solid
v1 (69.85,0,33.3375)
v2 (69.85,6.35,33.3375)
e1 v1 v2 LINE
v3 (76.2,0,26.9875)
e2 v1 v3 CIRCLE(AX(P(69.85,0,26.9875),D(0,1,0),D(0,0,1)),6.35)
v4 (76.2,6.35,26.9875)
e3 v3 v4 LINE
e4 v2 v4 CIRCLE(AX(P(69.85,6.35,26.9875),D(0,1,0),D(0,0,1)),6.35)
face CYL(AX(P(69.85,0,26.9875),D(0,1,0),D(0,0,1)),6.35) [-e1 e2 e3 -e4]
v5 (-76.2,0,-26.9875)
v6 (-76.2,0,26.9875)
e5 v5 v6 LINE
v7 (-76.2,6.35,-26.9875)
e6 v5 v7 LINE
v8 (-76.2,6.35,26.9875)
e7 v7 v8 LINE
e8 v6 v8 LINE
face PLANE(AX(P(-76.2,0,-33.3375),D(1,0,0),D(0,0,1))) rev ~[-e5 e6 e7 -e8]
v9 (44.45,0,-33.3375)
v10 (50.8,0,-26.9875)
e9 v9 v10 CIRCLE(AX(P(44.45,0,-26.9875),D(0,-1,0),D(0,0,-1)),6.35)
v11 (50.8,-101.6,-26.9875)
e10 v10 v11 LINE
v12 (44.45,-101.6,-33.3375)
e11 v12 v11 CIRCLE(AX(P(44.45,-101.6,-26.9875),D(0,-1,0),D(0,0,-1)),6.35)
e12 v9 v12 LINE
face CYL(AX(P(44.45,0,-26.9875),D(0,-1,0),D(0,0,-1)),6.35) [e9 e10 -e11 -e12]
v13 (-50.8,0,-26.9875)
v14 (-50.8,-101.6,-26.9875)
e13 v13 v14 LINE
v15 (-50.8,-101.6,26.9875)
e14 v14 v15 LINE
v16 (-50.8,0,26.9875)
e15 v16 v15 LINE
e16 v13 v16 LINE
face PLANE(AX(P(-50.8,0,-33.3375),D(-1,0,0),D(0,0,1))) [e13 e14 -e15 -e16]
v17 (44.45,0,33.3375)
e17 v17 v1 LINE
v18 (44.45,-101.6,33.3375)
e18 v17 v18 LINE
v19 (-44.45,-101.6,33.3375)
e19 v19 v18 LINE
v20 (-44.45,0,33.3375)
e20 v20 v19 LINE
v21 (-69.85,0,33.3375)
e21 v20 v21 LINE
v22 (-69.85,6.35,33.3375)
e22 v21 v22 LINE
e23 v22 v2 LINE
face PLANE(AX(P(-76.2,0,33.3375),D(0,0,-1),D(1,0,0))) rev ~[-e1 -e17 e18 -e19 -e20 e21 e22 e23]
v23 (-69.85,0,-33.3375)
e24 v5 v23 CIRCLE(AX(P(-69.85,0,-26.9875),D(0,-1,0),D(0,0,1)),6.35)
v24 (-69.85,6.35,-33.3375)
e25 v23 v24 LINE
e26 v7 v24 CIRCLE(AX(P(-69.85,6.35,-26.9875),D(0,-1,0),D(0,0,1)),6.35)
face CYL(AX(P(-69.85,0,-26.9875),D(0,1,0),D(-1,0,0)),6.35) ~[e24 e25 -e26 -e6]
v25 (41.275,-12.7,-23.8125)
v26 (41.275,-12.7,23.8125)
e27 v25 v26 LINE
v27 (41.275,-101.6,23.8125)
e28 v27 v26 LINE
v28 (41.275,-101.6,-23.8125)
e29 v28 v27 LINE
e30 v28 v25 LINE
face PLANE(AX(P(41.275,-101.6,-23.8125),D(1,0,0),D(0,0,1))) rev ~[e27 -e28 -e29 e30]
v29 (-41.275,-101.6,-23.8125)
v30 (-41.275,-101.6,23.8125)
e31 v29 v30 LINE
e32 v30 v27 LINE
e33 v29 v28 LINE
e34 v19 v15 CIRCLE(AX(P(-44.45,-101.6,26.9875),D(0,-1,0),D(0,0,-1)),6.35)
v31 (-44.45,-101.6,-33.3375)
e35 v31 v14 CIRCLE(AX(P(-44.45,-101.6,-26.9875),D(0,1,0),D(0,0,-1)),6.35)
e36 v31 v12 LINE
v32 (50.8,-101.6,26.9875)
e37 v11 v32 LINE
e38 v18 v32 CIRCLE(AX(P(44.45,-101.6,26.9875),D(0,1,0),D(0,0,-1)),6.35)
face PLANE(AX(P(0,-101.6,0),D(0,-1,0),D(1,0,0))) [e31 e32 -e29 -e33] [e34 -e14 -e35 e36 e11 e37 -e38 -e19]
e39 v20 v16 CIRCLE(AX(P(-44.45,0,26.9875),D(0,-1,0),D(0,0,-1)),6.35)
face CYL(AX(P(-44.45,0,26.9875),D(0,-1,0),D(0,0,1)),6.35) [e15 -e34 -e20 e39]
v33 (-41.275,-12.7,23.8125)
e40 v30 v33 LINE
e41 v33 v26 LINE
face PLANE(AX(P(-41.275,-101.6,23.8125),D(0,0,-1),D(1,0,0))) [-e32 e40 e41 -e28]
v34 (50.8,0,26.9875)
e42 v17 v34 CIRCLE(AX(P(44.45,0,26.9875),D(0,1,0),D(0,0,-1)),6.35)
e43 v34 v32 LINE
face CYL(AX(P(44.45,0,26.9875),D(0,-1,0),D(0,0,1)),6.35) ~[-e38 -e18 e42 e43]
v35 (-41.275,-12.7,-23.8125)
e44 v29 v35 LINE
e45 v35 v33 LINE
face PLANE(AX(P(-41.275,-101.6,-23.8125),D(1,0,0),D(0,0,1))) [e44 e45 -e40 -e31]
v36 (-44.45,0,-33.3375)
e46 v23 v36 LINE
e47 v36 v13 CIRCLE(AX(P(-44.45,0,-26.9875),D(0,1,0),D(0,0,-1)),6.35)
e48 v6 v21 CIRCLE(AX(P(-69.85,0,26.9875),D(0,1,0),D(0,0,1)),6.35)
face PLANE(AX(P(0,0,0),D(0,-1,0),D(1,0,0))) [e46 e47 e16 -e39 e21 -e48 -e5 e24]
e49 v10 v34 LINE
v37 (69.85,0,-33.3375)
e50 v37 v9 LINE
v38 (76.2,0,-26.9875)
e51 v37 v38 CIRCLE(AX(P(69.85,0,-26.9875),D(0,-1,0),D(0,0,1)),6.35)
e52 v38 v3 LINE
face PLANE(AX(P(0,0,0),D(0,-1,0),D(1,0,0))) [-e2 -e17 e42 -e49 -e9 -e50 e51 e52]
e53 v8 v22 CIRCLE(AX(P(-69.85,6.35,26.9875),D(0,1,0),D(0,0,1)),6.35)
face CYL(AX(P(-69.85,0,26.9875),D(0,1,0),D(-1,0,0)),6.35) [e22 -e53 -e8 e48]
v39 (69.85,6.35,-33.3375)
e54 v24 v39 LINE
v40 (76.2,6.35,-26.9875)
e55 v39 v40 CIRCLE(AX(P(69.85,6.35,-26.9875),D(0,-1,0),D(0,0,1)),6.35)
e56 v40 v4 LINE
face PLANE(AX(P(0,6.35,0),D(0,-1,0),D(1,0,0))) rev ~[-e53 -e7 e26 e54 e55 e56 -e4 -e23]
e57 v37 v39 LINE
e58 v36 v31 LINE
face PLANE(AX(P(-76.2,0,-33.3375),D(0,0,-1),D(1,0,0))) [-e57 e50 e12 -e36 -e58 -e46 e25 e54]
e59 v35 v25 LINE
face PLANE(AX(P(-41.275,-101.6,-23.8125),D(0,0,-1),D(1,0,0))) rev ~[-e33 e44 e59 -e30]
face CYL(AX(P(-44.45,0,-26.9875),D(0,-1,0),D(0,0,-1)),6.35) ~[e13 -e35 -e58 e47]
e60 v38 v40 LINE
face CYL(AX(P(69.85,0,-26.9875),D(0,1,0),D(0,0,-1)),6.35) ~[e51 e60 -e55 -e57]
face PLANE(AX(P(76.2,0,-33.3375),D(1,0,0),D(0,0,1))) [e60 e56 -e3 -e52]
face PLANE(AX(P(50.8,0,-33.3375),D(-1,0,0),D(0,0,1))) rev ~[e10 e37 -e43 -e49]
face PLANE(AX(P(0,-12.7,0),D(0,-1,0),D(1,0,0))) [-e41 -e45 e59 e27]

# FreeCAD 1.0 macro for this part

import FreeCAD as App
import Part
import Sketcher

V = App.Vector
Q = App.Units.Quantity


def edges_at(feature, points):
    """Names of the edges that pass closest to the given points."""
    edges = feature.Shape.Edges
    near = lambda p: min(range(len(edges)), key=lambda i: edges[i].distToShape(Part.Vertex(*p))[0])
    return sorted({f"Edge{near(p) + 1}" for p in points})


def add_polygon(sketch, points):
    """Adds a closed chain of lines whose ends are joined by coincident constraints."""
    first, n = sketch.GeometryCount, len(points)
    for a, b in zip(points, points[1:] + points[:1]):
        sketch.addGeometry(Part.LineSegment(App.Vector(*a, 0), App.Vector(*b, 0)), False)
    for i in range(n):
        sketch.addConstraint(Sketcher.Constraint("Coincident", first + i, 2, first + (i + 1) % n, 1))

doc = App.newDocument("Part")
body = doc.addObject("PartDesign::Body", "Body")

# Sketch on XZ plane
sketch1 = doc.addObject("Sketcher::SketchObject", "Sketch")
body.addObject(sketch1)
sketch1.AttachmentSupport = (doc.XZ_Plane, [""])
sketch1.MapMode = "FlatFace"
add_polygon(sketch1, [(-76, 33), (-76, -33), (76, -33), (76, 33)])  # lines 0-3
sketch1.addConstraint(Sketcher.Constraint("Vertical", 0))
sketch1.addConstraint(Sketcher.Constraint("Horizontal", 1))
sketch1.addConstraint(Sketcher.Constraint("Vertical", 2))
sketch1.addConstraint(Sketcher.Constraint("Horizontal", 3))
sketch1.addConstraint(Sketcher.Constraint("Symmetric", 0, 2, 2, 2, -1, 1))
sketch1.addConstraint(Sketcher.Constraint("DistanceX", 1, 1, 1, 2, Q("6 in")))
sketch1.addConstraint(Sketcher.Constraint("DistanceY", 0, 2, 0, 1, Q("2.625 in")))
pad1 = doc.addObject("PartDesign::Pad", "Pad")
body.addObject(pad1)
pad1.Profile = sketch1
pad1.Length = Q("0.25 in")
pad1.Reversed = True

# Sketch on XZ plane
sketch2 = doc.addObject("Sketcher::SketchObject", "Sketch001")
body.addObject(sketch2)
sketch2.AttachmentSupport = (doc.XZ_Plane, [""])
sketch2.MapMode = "FlatFace"
add_polygon(sketch2, [(-51, 33), (-51, -33), (51, -33), (51, 33)])  # lines 0-3
sketch2.addConstraint(Sketcher.Constraint("Vertical", 0))
sketch2.addConstraint(Sketcher.Constraint("Horizontal", 1))
sketch2.addConstraint(Sketcher.Constraint("Vertical", 2))
sketch2.addConstraint(Sketcher.Constraint("Horizontal", 3))
sketch2.addConstraint(Sketcher.Constraint("Symmetric", 0, 2, 2, 2, -1, 1))
sketch2.addConstraint(Sketcher.Constraint("DistanceX", 1, 1, 1, 2, Q("4 in")))
sketch2.addConstraint(Sketcher.Constraint("DistanceY", 0, 2, 0, 1, Q("2.625 in")))
pad2 = doc.addObject("PartDesign::Pad", "Pad001")
body.addObject(pad2)
pad2.Profile = sketch2
pad2.Length = Q("4 in")
doc.recompute()

fillet = doc.addObject("PartDesign::Fillet", "Fillet")
body.addObject(fillet)
fillet.Base = (pad2, edges_at(pad2, [
    (76.2, 3.175, 33.337),
    (76.2, 3.175, -33.337),
    (50.8, -50.8, 33.337),
    (50.8, -50.8, -33.337),
    (-76.2, 3.175, 33.337),
    (-76.2, 3.175, -33.337),
    (-50.8, -50.8, 33.337),
    (-50.8, -50.8, -33.337),
]))
fillet.Radius = Q("0.25 in")

# Sketch on XZ plane
sketch3 = doc.addObject("Sketcher::SketchObject", "Sketch002")
body.addObject(sketch3)
sketch3.AttachmentSupport = (doc.XZ_Plane, [""])
sketch3.MapMode = "FlatFace"
sketch3.AttachmentOffset = App.Placement(V(0, 0, 4 * 25.4), App.Rotation())
add_polygon(sketch3, [(-41, 24), (-41, -24), (41, -24), (41, 24)])  # lines 0-3
sketch3.addConstraint(Sketcher.Constraint("Vertical", 0))
sketch3.addConstraint(Sketcher.Constraint("Horizontal", 1))
sketch3.addConstraint(Sketcher.Constraint("Vertical", 2))
sketch3.addConstraint(Sketcher.Constraint("Horizontal", 3))
sketch3.addConstraint(Sketcher.Constraint("Symmetric", 0, 2, 2, 2, -1, 1))
sketch3.addConstraint(Sketcher.Constraint("DistanceX", 1, 1, 1, 2, Q("3.25 in")))
sketch3.addConstraint(Sketcher.Constraint("DistanceY", 0, 2, 0, 1, Q("1.875 in")))
pocket1 = doc.addObject("PartDesign::Pocket", "Pocket")
body.addObject(pocket1)
pocket1.Profile = sketch3
pocket1.Length = Q("3.5 in")

doc.recompute()
